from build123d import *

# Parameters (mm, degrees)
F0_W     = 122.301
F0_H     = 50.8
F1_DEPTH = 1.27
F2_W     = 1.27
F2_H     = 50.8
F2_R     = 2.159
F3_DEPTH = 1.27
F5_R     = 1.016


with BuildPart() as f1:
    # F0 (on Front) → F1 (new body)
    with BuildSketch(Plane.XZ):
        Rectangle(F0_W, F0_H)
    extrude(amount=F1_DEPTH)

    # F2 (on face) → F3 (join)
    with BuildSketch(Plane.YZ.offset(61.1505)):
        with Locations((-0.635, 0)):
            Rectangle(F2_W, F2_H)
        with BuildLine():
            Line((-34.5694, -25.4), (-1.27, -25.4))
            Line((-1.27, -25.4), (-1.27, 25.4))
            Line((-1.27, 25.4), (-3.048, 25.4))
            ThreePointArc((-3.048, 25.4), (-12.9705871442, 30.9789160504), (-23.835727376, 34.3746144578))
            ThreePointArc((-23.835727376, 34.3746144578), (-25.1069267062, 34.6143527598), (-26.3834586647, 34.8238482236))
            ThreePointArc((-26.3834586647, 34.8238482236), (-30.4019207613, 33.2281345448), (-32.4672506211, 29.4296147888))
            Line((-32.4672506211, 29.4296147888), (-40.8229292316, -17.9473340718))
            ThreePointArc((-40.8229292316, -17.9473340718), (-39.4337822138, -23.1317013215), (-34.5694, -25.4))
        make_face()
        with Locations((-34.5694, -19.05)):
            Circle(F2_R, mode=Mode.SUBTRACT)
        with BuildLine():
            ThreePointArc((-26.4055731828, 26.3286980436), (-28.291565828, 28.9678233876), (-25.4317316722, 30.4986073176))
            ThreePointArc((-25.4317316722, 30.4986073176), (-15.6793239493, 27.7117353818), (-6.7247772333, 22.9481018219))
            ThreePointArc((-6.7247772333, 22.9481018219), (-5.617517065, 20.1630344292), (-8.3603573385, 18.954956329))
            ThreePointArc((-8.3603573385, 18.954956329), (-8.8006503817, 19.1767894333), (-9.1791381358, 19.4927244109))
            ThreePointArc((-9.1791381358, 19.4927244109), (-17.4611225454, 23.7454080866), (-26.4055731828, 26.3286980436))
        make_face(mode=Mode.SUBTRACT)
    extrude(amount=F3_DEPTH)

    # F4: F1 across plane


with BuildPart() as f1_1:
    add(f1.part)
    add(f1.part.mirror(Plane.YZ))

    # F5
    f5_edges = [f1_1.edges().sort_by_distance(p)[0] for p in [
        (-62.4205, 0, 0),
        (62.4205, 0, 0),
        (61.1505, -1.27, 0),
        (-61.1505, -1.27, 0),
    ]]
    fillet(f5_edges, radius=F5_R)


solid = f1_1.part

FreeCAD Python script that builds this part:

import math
import FreeCAD as App
import Part
import Sketcher
from FreeCAD import Vector
Q = App.Units.Quantity


def edges_at(feature, points):
    """Names of the edges that pass closest to the given points."""
    edges = feature.Shape.Edges
    near = lambda p: min(range(len(edges)), key=lambda i: edges[i].distToShape(Part.Vertex(*p))[0])
    return sorted({f"Edge{near(p) + 1}" for p in points})


def add_polygon(sketch, points):
    """Adds a closed chain of lines whose ends are joined by coincident constraints."""
    first, n = sketch.GeometryCount, len(points)
    for a, b in zip(points, points[1:] + points[:1]):
        sketch.addGeometry(Part.LineSegment(App.Vector(*a, 0), App.Vector(*b, 0)), False)
    for i in range(n):
        sketch.addConstraint(Sketcher.Constraint("Coincident", first + i, 2, first + (i + 1) % n, 1))

doc = App.newDocument("Part")
body = doc.addObject("PartDesign::Body", "Body")

# Sketch on XZ plane
sketch1 = doc.addObject("Sketcher::SketchObject", "Sketch")
body.addObject(sketch1)
sketch1.AttachmentSupport = (doc.XZ_Plane, [""])
sketch1.MapMode = "FlatFace"
add_polygon(sketch1, [(-61, 25), (-61, -25), (61, -25), (61, 25)])  # lines 0-3
sketch1.addConstraint([
    Sketcher.Constraint("Vertical", 0),
    Sketcher.Constraint("Horizontal", 1),
    Sketcher.Constraint("Vertical", 2),
    Sketcher.Constraint("Horizontal", 3),
    Sketcher.Constraint("Symmetric", 0, 2, 2, 2, -1, 1),
    Sketcher.Constraint("DistanceY", 0, 2, 0, 1, Q("2 in")),
    Sketcher.Constraint("DistanceX", 1, 1, 1, 2, Q("4.815 in")),
])
pad1 = doc.addObject("PartDesign::Pad", "Pad")
body.addObject(pad1)
pad1.Profile = sketch1
pad1.Length = Q("0.05 in")

# Sketch on YZ plane
sketch2 = doc.addObject("Sketcher::SketchObject", "Sketch001")
body.addObject(sketch2)
sketch2.AttachmentSupport = (doc.YZ_Plane, [""])
sketch2.MapMode = "FlatFace"
sketch2.AttachmentOffset = App.Placement(Vector(0, 0, 2.4075 * 25.4), App.Rotation())
sketch2.addGeometry([
    Part.LineSegment(Vector(0, -25.4, 0), Vector(0, 25.4, 0)),  # 0
    Part.LineSegment(Vector(0, 25.4, 0), Vector(-3, 25.4, 0)),  # 1
    Part.ArcOfCircle(Part.Circle(Vector(-34.6, -19.1, 0), Vector(0, 0, 1), 54.5), math.radians(55), math.radians(79)),  # 2
    Part.ArcOfCircle(Part.Circle(Vector(-34.6, -19.1, 0), Vector(0, 0, 1), 54.5), math.radians(78.64), math.radians(81.36)),  # 3
    Part.ArcOfCircle(Part.Circle(Vector(-26.2, 28.5, 0), Vector(0, 0, 1), 6.3), math.radians(92), math.radians(171)),  # 4
    Part.LineSegment(Vector(-32.5, 29.4, 0), Vector(-40.8, -17.9, 0)),  # 5
    Part.ArcOfCircle(Part.Circle(Vector(-34.6, -19.1, 0), Vector(0, 0, 1), 6.3), math.radians(170), math.radians(270)),  # 6
    Part.LineSegment(Vector(-34.6, -25.4, 0), Vector(0, -25.4, 0)),  # 7
    Part.Circle(Vector(-34.6, -19.1, 0), Vector(0, 0, 1), 2.2),  # 8
    Part.ArcOfCircle(Part.Circle(Vector(-35.3, -21.1, 0), Vector(0, 0, 1), 48.3), math.radians(57), math.radians(79)),  # 9
    Part.ArcOfCircle(Part.Circle(Vector(-26.2, 28.5, 0), Vector(0, 0, 1), 2.2), math.radians(69), math.radians(264)),  # 10
    Part.ArcOfCircle(Part.Circle(Vector(-33.7, -17, 0), Vector(0, 0, 1), 48.3), math.radians(56), math.radians(80)),  # 11
    Part.ArcOfCircle(Part.Circle(Vector(-7.6, 21, 0), Vector(0, 0, 1), 2.2), math.radians(-110), math.radians(66)),  # 12
    Part.ArcOfCircle(Part.Circle(Vector(-7.6, 21, 0), Vector(0, 0, 1), 2.2), math.radians(-136), math.radians(-110)),  # 13
], False)
sketch2.addConstraint([
    Sketcher.Constraint("Coincident", 0, 2, 1, 1),
    Sketcher.Constraint("Coincident", 1, 2, 2, 1),
    Sketcher.Constraint("Tangent", 2, 2, 3, 1),
    Sketcher.Constraint("Coincident", 3, 2, 4, 1),
    Sketcher.Constraint("Coincident", 4, 2, 5, 1),
    Sketcher.Constraint("Coincident", 5, 2, 6, 1),
    Sketcher.Constraint("Tangent", 6, 2, 7, 1),
    Sketcher.Constraint("Coincident", 7, 2, 0, 1),
    Sketcher.Constraint("Coincident", 9, 2, 10, 2),
    Sketcher.Constraint("Coincident", 10, 1, 11, 2),
    Sketcher.Constraint("Coincident", 11, 1, 12, 2),
    Sketcher.Constraint("Tangent", 12, 1, 13, 2),
    Sketcher.Constraint("Coincident", 13, 1, 9, 1),
    Sketcher.Constraint("Vertical", 0),
    Sketcher.Constraint("Horizontal", 1),
    Sketcher.Constraint("Horizontal", 7),
    Sketcher.Constraint("Coincident", 6, 3, 2, 3),
    Sketcher.Constraint("Coincident", 8, 3, 2, 3),
    Sketcher.Constraint("Coincident", 10, 3, 4, 3),
    Sketcher.Constraint("Equal", 2, 3),
    Sketcher.Constraint("Equal", 4, 6),
    Sketcher.Constraint("Equal", 8, 10),
    Sketcher.Constraint("Equal", 9, 11),
    Sketcher.Constraint("Equal", 10, 12),
    Sketcher.Constraint("Equal", 12, 13),
    Sketcher.Constraint("Symmetric", 0, 2, 7, 2, -1, 1),
    Sketcher.Constraint("Radius", 9, Q("1.9 in")),
    Sketcher.Constraint("Diameter", 8, Q("0.17 in")),
    Sketcher.Constraint("DistanceY", 0, 1, 0, 2, Q("2 in")),
    Sketcher.Constraint("Radius", 4, Q("0.25 in")),
    Sketcher.Constraint("DistanceX", 1, 2, 1, 1, Q("0.12 in")),
    Sketcher.Constraint("DistanceX", 7, 1, 7, 2, Q("1.361 in")),
    Sketcher.Constraint("DistanceY", -1, 1, 9, 2, 26.328698),
    Sketcher.Constraint("DistanceY", -1, 1, 11, 1, 22.948102),
    Sketcher.Constraint("DistanceX", 11, 3, 12, 3, 26.1268),
    Sketcher.Constraint("DistanceY", 4, 2, 2, 2, 4.945),
    Sketcher.Constraint("DistanceX", 4, 3, -1, 1, 26.189139),
    Sketcher.Constraint("DistanceX", 11, 3, -1, 1, 33.742218),
    Sketcher.Constraint("DistanceY", -1, 1, 12, 3, 20.981369),
    Sketcher.Constraint("DistanceX", 3, 2, -1, 1, 26.383459),
    Sketcher.Constraint("DistanceX", 4, 2, -1, 1, 32.467251),
    Sketcher.Constraint("DistanceX", 5, 2, -1, 1, 40.822929),
    Sketcher.Constraint("DistanceX", 13, 1, -1, 1, 9.179138),
    Sketcher.Constraint("DistanceX", 12, 1, 13, 3, 0.744939),
])
pad2 = doc.addObject("PartDesign::Pad", "Pad001")
body.addObject(pad2)
pad2.Profile = sketch2
pad2.Length = Q("0.05 in")
body2 = doc.addObject("PartDesign::Body", "Body001")
doc.recompute()

body2.BaseFeature = body
doc.recompute()

mirroring = doc.addObject("Part::Mirroring", "Mirroring")
mirroring.Source = body
mirroring.Base = Vector(0, 0, 0)
mirroring.Normal = Vector(1, 0, 0)
body3 = doc.addObject("PartDesign::Body", "Body002")
body3.BaseFeature = mirroring
boolean = doc.addObject("PartDesign::Boolean", "Boolean")
body2.addObject(boolean)
boolean.Type = "Fuse"
boolean.addObjects([body3])
doc.recompute()

fillet = doc.addObject("PartDesign::Fillet", "Fillet")
body2.addObject(fillet)
fillet.Base = (boolean, edges_at(boolean, [
    (-62.42, 0, 0),
    (62.42, 0, 0),
    (61.151, -1.27, 0),
    (-61.151, -1.27, 0),
]))
fillet.Radius = Q("0.04 in")
mirroring.Visibility = False

doc.recompute()
